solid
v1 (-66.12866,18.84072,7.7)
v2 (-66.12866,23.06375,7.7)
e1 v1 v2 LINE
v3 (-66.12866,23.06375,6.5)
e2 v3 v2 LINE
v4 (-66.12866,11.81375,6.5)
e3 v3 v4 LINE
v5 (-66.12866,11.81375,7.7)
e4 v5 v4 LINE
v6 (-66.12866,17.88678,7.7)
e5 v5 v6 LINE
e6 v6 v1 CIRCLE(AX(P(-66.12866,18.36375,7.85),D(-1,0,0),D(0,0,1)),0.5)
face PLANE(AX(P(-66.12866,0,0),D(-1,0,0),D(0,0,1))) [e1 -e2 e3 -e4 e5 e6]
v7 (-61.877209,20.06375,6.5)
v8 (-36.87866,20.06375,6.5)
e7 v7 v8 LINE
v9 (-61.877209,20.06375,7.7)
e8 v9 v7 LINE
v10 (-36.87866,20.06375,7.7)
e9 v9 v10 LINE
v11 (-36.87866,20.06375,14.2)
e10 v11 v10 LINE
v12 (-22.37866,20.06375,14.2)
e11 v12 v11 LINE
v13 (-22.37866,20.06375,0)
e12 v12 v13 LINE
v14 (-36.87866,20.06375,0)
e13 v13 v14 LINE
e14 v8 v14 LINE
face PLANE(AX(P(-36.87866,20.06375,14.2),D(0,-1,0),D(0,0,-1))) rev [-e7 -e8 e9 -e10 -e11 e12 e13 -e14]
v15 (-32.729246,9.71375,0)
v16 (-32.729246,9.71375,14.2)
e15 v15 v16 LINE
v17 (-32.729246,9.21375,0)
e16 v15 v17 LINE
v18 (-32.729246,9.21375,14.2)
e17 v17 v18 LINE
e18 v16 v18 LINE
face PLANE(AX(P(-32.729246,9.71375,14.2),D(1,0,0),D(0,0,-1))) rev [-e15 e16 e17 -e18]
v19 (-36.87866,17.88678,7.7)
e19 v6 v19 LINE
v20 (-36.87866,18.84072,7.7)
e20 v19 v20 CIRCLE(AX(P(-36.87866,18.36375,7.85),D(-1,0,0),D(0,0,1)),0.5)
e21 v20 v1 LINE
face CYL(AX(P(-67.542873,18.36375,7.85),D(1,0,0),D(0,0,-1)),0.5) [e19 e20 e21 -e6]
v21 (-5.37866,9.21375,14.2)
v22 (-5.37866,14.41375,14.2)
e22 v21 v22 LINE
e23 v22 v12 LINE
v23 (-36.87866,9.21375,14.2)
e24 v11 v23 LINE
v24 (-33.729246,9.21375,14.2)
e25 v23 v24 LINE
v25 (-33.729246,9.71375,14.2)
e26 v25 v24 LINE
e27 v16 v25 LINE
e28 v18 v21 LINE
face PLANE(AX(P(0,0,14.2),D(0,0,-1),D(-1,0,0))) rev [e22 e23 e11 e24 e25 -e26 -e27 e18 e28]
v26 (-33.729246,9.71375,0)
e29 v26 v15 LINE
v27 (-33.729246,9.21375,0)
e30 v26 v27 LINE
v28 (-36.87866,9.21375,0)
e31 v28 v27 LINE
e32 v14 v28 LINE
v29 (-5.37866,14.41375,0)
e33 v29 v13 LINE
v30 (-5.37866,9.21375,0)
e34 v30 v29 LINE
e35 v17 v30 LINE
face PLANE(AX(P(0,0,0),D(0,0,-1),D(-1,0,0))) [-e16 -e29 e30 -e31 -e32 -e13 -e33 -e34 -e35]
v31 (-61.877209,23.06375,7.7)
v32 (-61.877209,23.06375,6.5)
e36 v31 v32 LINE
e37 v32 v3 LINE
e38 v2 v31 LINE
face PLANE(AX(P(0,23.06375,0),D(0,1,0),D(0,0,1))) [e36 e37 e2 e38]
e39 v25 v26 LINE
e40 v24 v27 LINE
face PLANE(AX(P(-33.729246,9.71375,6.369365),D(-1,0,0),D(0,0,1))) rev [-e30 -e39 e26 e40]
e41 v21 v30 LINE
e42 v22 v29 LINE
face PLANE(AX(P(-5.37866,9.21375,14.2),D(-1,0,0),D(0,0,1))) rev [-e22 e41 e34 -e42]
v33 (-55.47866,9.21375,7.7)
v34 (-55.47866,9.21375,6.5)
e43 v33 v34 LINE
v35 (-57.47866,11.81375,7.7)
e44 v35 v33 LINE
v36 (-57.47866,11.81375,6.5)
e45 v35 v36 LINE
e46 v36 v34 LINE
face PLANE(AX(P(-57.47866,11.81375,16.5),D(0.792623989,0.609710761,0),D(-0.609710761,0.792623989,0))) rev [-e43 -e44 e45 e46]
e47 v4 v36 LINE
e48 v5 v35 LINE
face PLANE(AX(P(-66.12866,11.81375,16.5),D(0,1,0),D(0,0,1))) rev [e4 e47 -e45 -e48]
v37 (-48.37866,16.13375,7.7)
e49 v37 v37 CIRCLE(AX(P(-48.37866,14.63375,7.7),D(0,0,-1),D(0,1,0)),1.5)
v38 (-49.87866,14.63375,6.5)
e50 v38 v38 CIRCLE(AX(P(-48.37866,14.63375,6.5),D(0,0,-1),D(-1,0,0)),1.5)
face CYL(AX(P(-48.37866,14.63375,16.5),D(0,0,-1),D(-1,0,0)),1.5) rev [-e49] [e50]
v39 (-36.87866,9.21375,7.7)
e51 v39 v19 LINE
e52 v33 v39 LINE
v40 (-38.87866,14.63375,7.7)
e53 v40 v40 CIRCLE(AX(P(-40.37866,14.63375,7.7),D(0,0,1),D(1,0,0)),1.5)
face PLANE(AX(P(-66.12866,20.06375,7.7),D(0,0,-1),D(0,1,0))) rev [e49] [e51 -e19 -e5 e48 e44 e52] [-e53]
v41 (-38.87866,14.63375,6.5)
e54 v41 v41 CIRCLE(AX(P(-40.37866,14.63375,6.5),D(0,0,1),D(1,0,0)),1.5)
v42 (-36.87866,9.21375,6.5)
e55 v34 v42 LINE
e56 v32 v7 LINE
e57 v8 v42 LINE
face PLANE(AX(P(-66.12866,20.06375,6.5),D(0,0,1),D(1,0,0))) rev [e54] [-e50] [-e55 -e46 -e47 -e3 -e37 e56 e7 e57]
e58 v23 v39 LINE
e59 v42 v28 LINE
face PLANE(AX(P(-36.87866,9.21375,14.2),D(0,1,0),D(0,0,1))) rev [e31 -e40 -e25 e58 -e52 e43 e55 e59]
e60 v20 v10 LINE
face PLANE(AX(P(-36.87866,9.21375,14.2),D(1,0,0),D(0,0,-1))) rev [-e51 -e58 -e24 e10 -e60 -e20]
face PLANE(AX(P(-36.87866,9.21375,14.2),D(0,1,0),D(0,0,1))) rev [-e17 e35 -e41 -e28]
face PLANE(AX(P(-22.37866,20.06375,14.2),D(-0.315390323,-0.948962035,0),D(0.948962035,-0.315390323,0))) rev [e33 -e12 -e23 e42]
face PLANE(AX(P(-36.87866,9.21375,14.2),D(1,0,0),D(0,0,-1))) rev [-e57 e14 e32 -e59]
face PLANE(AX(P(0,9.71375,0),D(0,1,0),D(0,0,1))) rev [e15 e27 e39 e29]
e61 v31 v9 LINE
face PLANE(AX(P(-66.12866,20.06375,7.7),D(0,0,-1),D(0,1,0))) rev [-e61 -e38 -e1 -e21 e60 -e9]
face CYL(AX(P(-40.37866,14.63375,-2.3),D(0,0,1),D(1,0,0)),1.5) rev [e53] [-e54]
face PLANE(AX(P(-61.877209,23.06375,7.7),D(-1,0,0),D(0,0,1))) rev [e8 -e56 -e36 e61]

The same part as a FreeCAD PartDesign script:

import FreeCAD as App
import Part
import Sketcher
from FreeCAD import Vector

doc = App.newDocument("Part")
body = doc.addObject("PartDesign::Body", "Body")

# Sketch on XY plane
sketch1 = doc.addObject("Sketcher::SketchObject", "Sketch")
body.addObject(sketch1)
sketch1.AttachmentSupport = (doc.XY_Plane, [""])
sketch1.MapMode = "FlatFace"
sketch1.addGeometry(Part.LineSegment(Vector(-37, 9, 0), Vector(-5, 9, 0)), False)
sketch1.addGeometry(Part.LineSegment(Vector(-5, 9, 0), Vector(-5, 14, 0)), False)
sketch1.addGeometry(Part.LineSegment(Vector(-5, 14, 0), Vector(-22, 20, 0)), False)
sketch1.addGeometry(Part.LineSegment(Vector(-22, 20, 0), Vector(-37, 20, 0)), False)
sketch1.addGeometry(Part.LineSegment(Vector(-37, 20, 0), Vector(-37, 9, 0)), False)
sketch1.addConstraint(Sketcher.Constraint("Coincident", 0, 2, 1, 1))
sketch1.addConstraint(Sketcher.Constraint("Coincident", 1, 2, 2, 1))
sketch1.addConstraint(Sketcher.Constraint("Coincident", 2, 2, 3, 1))
sketch1.addConstraint(Sketcher.Constraint("Coincident", 3, 2, 4, 1))
sketch1.addConstraint(Sketcher.Constraint("Coincident", 4, 2, 0, 1))
sketch1.addConstraint(Sketcher.Constraint("Horizontal", 0))
sketch1.addConstraint(Sketcher.Constraint("Vertical", 1))
sketch1.addConstraint(Sketcher.Constraint("Horizontal", 3))
sketch1.addConstraint(Sketcher.Constraint("Vertical", 4))
sketch1.addConstraint(Sketcher.Constraint("DistanceX", 0, 1, 0, 2, 31.5))
sketch1.addConstraint(Sketcher.Constraint("DistanceX", 3, 2, 3, 1, 14.5))
sketch1.addConstraint(Sketcher.Constraint("DistanceY", 1, 1, 1, 2, 5.2))
sketch1.addConstraint(Sketcher.Constraint("DistanceY", 4, 2, 4, 1, 10.85))
sketch1.addConstraint(Sketcher.Constraint("DistanceX", 0, 2, -1, 1, 5.37866))
sketch1.addConstraint(Sketcher.Constraint("DistanceY", -1, 1, 0, 2, 9.21375))
pad1 = doc.addObject("PartDesign::Pad", "Pad")
body.addObject(pad1)
pad1.Profile = sketch1
pad1.Length = 14.2

# Sketch on YZ plane
sketch2 = doc.addObject("Sketcher::SketchObject", "Sketch001")
body.addObject(sketch2)
sketch2.AttachmentSupport = (doc.YZ_Plane, [""])
sketch2.MapMode = "FlatFace"
sketch2.AttachmentOffset = App.Placement(Vector(0, 0, -36.87866), App.Rotation())
sketch2.addGeometry(Part.LineSegment(Vector(20.1, 6.5, 0), Vector(9.2, 6.5, 0)), False)
sketch2.addGeometry(Part.LineSegment(Vector(9.2, 6.5, 0), Vector(9.2, 7.7, 0)), False)
sketch2.addGeometry(Part.LineSegment(Vector(9.2, 7.7, 0), Vector(20.1, 7.7, 0)), False)
sketch2.addGeometry(Part.LineSegment(Vector(20.1, 7.7, 0), Vector(20.1, 6.5, 0)), False)
sketch2.addConstraint(Sketcher.Constraint("Coincident", 0, 2, 1, 1))
sketch2.addConstraint(Sketcher.Constraint("Coincident", 1, 2, 2, 1))
sketch2.addConstraint(Sketcher.Constraint("Coincident", 2, 2, 3, 1))
sketch2.addConstraint(Sketcher.Constraint("Coincident", 3, 2, 0, 1))
sketch2.addConstraint(Sketcher.Constraint("Horizontal", 0))
sketch2.addConstraint(Sketcher.Constraint("Vertical", 1))
sketch2.addConstraint(Sketcher.Constraint("Horizontal", 2))
sketch2.addConstraint(Sketcher.Constraint("Vertical", 3))
sketch2.addConstraint(Sketcher.Constraint("DistanceY", 1, 1, 1, 2, 1.2))
sketch2.addConstraint(Sketcher.Constraint("DistanceX", 0, 2, 0, 1, 10.85))
sketch2.addConstraint(Sketcher.Constraint("DistanceY", -1, 1, 0, 2, 6.5))
sketch2.addConstraint(Sketcher.Constraint("DistanceX", -1, 1, 0, 2, 9.21375))
pad2 = doc.addObject("PartDesign::Pad", "Pad001")
body.addObject(pad2)
pad2.Profile = sketch2
pad2.Length = 29.25
pad2.Reversed = True

# Sketch on XZ plane
sketch3 = doc.addObject("Sketcher::SketchObject", "Sketch002")
body.addObject(sketch3)
sketch3.AttachmentSupport = (doc.XZ_Plane, [""])
sketch3.MapMode = "FlatFace"
sketch3.AttachmentOffset = App.Placement(Vector(0, 0, -20.06375), App.Rotation())
sketch3.addGeometry(Part.LineSegment(Vector(-66.1, 6.5, 0), Vector(-66.1, 7.7, 0)), False)
sketch3.addGeometry(Part.LineSegment(Vector(-66.1, 7.7, 0), Vector(-61.9, 7.7, 0)), False)
sketch3.addGeometry(Part.LineSegment(Vector(-61.9, 7.7, 0), Vector(-61.9, 6.5, 0)), False)
sketch3.addGeometry(Part.LineSegment(Vector(-61.9, 6.5, 0), Vector(-66.1, 6.5, 0)), False)
sketch3.addConstraint(Sketcher.Constraint("Coincident", 0, 2, 1, 1))
sketch3.addConstraint(Sketcher.Constraint("Coincident", 1, 2, 2, 1))
sketch3.addConstraint(Sketcher.Constraint("Coincident", 2, 2, 3, 1))
sketch3.addConstraint(Sketcher.Constraint("Coincident", 3, 2, 0, 1))
sketch3.addConstraint(Sketcher.Constraint("Vertical", 0))
sketch3.addConstraint(Sketcher.Constraint("Horizontal", 1))
sketch3.addConstraint(Sketcher.Constraint("Vertical", 2))
sketch3.addConstraint(Sketcher.Constraint("Horizontal", 3))
sketch3.addConstraint(Sketcher.Constraint("DistanceY", 0, 1, 0, 2, 1.2))
sketch3.addConstraint(Sketcher.Constraint("DistanceY", -1, 1, 0, 2, 7.7))
sketch3.addConstraint(Sketcher.Constraint("DistanceX", 1, 1, 1, 2, 4.25145))
sketch3.addConstraint(Sketcher.Constraint("DistanceX", 0, 2, -1, 1, 66.12866))
pad3 = doc.addObject("PartDesign::Pad", "Pad002")
body.addObject(pad3)
pad3.Profile = sketch3
pad3.Length = 3
pad3.Reversed = True

# Sketch on XY plane
sketch4 = doc.addObject("Sketcher::SketchObject", "Sketch003")
body.addObject(sketch4)
sketch4.AttachmentSupport = (doc.XY_Plane, [""])
sketch4.MapMode = "FlatFace"
sketch4.AttachmentOffset = App.Placement(Vector(0, 0, 7.7), App.Rotation())
sketch4.addGeometry(Part.Circle(Vector(-40.4, 14.6, 0), Vector(0, 0, 1), 1.5), False)
sketch4.addConstraint(Sketcher.Constraint("Diameter", 0, 3.0))
sketch4.addConstraint(Sketcher.Constraint("DistanceX", 0, 3, -1, 1, 40.37866))
sketch4.addConstraint(Sketcher.Constraint("DistanceY", -1, 1, 0, 3, 14.63375))
pocket1 = doc.addObject("PartDesign::Pocket", "Pocket")
body.addObject(pocket1)
pocket1.Profile = sketch4
pocket1.Length = 10

# Sketch on XZ plane
sketch5 = doc.addObject("Sketcher::SketchObject", "Sketch004")
body.addObject(sketch5)
sketch5.AttachmentSupport = (doc.XZ_Plane, [""])
sketch5.MapMode = "FlatFace"
sketch5.AttachmentOffset = App.Placement(Vector(0, 0, -9.21375), App.Rotation())
sketch5.addGeometry(Part.LineSegment(Vector(-33.7, 14.2, 0), Vector(-33.7, 0, 0)), False)
sketch5.addGeometry(Part.LineSegment(Vector(-33.7, 0, 0), Vector(-32.7, 0, 0)), False)
sketch5.addGeometry(Part.LineSegment(Vector(-32.7, 0, 0), Vector(-32.7, 14.2, 0)), False)
sketch5.addGeometry(Part.LineSegment(Vector(-32.7, 14.2, 0), Vector(-33.7, 14.2, 0)), False)
sketch5.addConstraint(Sketcher.Constraint("Coincident", 0, 2, 1, 1))
sketch5.addConstraint(Sketcher.Constraint("Coincident", 1, 2, 2, 1))
sketch5.addConstraint(Sketcher.Constraint("Coincident", 2, 2, 3, 1))
sketch5.addConstraint(Sketcher.Constraint("Coincident", 3, 2, 0, 1))
sketch5.addConstraint(Sketcher.Constraint("Vertical", 0))
sketch5.addConstraint(Sketcher.Constraint("Horizontal", 1))
sketch5.addConstraint(Sketcher.Constraint("Vertical", 2))
sketch5.addConstraint(Sketcher.Constraint("Horizontal", 3))
sketch5.addConstraint(Sketcher.Constraint("PointOnObject", 0, 2, -1))
sketch5.addConstraint(Sketcher.Constraint("DistanceX", 1, 1, 1, 2, 1.0))
sketch5.addConstraint(Sketcher.Constraint("DistanceY", 0, 2, 0, 1, 14.2))
sketch5.addConstraint(Sketcher.Constraint("DistanceX", 0, 2, -1, 1, 33.729246))
pocket2 = doc.addObject("PartDesign::Pocket", "Pocket001")
body.addObject(pocket2)
pocket2.Profile = sketch5
pocket2.Length = 0.5

# Sketch on YZ plane
sketch6 = doc.addObject("Sketcher::SketchObject", "Sketch005")
body.addObject(sketch6)
sketch6.AttachmentSupport = (doc.YZ_Plane, [""])
sketch6.MapMode = "FlatFace"
sketch6.AttachmentOffset = App.Placement(Vector(0, 0, -36.87866), App.Rotation())
sketch6.addGeometry(Part.Circle(Vector(18.4, 7.8, 0), Vector(0, 0, 1), 0.5), False)
sketch6.addConstraint(Sketcher.Constraint("Diameter", 0, 1.0))
sketch6.addConstraint(Sketcher.Constraint("DistanceY", -1, 1, 0, 3, 7.85))
sketch6.addConstraint(Sketcher.Constraint("DistanceX", -1, 1, 0, 3, 18.36375))
pad4 = doc.addObject("PartDesign::Pad", "Pad003")
body.addObject(pad4)
pad4.Profile = sketch6
pad4.Length = 29.25
pad4.Reversed = True

# Sketch on XY plane
sketch7 = doc.addObject("Sketcher::SketchObject", "Sketch006")
body.addObject(sketch7)
sketch7.AttachmentSupport = (doc.XY_Plane, [""])
sketch7.MapMode = "FlatFace"
sketch7.AttachmentOffset = App.Placement(Vector(0, 0, 6.5), App.Rotation())
sketch7.addGeometry(Part.LineSegment(Vector(-55.5, 9.2, 0), Vector(-66.1, 9.2, 0)), False)
sketch7.addGeometry(Part.LineSegment(Vector(-66.1, 9.2, 0), Vector(-66.1, 11.8, 0)), False)
sketch7.addGeometry(Part.LineSegment(Vector(-66.1, 11.8, 0), Vector(-57.5, 11.8, 0)), False)
sketch7.addGeometry(Part.LineSegment(Vector(-57.5, 11.8, 0), Vector(-55.5, 9.2, 0)), False)
sketch7.addConstraint(Sketcher.Constraint("Coincident", 0, 2, 1, 1))
sketch7.addConstraint(Sketcher.Constraint("Coincident", 1, 2, 2, 1))
sketch7.addConstraint(Sketcher.Constraint("Coincident", 2, 2, 3, 1))
sketch7.addConstraint(Sketcher.Constraint("Coincident", 3, 2, 0, 1))
sketch7.addConstraint(Sketcher.Constraint("Horizontal", 0))
sketch7.addConstraint(Sketcher.Constraint("Vertical", 1))
sketch7.addConstraint(Sketcher.Constraint("Horizontal", 2))
sketch7.addConstraint(Sketcher.Constraint("DistanceY", 1, 1, 1, 2, 2.6))
sketch7.addConstraint(Sketcher.Constraint("DistanceX", 2, 2, 3, 2, 2.0))
sketch7.addConstraint(Sketcher.Constraint("DistanceX", 0, 2, 0, 1, 10.65))
sketch7.addConstraint(Sketcher.Constraint("DistanceX", 0, 2, -1, 1, 66.12866))
sketch7.addConstraint(Sketcher.Constraint("DistanceY", -1, 1, 0, 2, 9.21375))
pocket3 = doc.addObject("PartDesign::Pocket", "Pocket002")
body.addObject(pocket3)
pocket3.Profile = sketch7
pocket3.Length = 10
pocket3.Reversed = True

# Sketch on XY plane
sketch8 = doc.addObject("Sketcher::SketchObject", "Sketch007")
body.addObject(sketch8)
sketch8.AttachmentSupport = (doc.XY_Plane, [""])
sketch8.MapMode = "FlatFace"
sketch8.AttachmentOffset = App.Placement(Vector(0, 0, 6.5), App.Rotation())
sketch8.addGeometry(Part.Circle(Vector(-48.4, 14.6, 0), Vector(0, 0, 1), 1.5), False)
sketch8.addConstraint(Sketcher.Constraint("Diameter", 0, 3.0))
sketch8.addConstraint(Sketcher.Constraint("DistanceX", 0, 3, -1, 1, 48.37866))
sketch8.addConstraint(Sketcher.Constraint("DistanceY", -1, 1, 0, 3, 14.63375))
pocket4 = doc.addObject("PartDesign::Pocket", "Pocket003")
body.addObject(pocket4)
pocket4.Profile = sketch8
pocket4.Length = 10
pocket4.Reversed = True

doc.recompute()
